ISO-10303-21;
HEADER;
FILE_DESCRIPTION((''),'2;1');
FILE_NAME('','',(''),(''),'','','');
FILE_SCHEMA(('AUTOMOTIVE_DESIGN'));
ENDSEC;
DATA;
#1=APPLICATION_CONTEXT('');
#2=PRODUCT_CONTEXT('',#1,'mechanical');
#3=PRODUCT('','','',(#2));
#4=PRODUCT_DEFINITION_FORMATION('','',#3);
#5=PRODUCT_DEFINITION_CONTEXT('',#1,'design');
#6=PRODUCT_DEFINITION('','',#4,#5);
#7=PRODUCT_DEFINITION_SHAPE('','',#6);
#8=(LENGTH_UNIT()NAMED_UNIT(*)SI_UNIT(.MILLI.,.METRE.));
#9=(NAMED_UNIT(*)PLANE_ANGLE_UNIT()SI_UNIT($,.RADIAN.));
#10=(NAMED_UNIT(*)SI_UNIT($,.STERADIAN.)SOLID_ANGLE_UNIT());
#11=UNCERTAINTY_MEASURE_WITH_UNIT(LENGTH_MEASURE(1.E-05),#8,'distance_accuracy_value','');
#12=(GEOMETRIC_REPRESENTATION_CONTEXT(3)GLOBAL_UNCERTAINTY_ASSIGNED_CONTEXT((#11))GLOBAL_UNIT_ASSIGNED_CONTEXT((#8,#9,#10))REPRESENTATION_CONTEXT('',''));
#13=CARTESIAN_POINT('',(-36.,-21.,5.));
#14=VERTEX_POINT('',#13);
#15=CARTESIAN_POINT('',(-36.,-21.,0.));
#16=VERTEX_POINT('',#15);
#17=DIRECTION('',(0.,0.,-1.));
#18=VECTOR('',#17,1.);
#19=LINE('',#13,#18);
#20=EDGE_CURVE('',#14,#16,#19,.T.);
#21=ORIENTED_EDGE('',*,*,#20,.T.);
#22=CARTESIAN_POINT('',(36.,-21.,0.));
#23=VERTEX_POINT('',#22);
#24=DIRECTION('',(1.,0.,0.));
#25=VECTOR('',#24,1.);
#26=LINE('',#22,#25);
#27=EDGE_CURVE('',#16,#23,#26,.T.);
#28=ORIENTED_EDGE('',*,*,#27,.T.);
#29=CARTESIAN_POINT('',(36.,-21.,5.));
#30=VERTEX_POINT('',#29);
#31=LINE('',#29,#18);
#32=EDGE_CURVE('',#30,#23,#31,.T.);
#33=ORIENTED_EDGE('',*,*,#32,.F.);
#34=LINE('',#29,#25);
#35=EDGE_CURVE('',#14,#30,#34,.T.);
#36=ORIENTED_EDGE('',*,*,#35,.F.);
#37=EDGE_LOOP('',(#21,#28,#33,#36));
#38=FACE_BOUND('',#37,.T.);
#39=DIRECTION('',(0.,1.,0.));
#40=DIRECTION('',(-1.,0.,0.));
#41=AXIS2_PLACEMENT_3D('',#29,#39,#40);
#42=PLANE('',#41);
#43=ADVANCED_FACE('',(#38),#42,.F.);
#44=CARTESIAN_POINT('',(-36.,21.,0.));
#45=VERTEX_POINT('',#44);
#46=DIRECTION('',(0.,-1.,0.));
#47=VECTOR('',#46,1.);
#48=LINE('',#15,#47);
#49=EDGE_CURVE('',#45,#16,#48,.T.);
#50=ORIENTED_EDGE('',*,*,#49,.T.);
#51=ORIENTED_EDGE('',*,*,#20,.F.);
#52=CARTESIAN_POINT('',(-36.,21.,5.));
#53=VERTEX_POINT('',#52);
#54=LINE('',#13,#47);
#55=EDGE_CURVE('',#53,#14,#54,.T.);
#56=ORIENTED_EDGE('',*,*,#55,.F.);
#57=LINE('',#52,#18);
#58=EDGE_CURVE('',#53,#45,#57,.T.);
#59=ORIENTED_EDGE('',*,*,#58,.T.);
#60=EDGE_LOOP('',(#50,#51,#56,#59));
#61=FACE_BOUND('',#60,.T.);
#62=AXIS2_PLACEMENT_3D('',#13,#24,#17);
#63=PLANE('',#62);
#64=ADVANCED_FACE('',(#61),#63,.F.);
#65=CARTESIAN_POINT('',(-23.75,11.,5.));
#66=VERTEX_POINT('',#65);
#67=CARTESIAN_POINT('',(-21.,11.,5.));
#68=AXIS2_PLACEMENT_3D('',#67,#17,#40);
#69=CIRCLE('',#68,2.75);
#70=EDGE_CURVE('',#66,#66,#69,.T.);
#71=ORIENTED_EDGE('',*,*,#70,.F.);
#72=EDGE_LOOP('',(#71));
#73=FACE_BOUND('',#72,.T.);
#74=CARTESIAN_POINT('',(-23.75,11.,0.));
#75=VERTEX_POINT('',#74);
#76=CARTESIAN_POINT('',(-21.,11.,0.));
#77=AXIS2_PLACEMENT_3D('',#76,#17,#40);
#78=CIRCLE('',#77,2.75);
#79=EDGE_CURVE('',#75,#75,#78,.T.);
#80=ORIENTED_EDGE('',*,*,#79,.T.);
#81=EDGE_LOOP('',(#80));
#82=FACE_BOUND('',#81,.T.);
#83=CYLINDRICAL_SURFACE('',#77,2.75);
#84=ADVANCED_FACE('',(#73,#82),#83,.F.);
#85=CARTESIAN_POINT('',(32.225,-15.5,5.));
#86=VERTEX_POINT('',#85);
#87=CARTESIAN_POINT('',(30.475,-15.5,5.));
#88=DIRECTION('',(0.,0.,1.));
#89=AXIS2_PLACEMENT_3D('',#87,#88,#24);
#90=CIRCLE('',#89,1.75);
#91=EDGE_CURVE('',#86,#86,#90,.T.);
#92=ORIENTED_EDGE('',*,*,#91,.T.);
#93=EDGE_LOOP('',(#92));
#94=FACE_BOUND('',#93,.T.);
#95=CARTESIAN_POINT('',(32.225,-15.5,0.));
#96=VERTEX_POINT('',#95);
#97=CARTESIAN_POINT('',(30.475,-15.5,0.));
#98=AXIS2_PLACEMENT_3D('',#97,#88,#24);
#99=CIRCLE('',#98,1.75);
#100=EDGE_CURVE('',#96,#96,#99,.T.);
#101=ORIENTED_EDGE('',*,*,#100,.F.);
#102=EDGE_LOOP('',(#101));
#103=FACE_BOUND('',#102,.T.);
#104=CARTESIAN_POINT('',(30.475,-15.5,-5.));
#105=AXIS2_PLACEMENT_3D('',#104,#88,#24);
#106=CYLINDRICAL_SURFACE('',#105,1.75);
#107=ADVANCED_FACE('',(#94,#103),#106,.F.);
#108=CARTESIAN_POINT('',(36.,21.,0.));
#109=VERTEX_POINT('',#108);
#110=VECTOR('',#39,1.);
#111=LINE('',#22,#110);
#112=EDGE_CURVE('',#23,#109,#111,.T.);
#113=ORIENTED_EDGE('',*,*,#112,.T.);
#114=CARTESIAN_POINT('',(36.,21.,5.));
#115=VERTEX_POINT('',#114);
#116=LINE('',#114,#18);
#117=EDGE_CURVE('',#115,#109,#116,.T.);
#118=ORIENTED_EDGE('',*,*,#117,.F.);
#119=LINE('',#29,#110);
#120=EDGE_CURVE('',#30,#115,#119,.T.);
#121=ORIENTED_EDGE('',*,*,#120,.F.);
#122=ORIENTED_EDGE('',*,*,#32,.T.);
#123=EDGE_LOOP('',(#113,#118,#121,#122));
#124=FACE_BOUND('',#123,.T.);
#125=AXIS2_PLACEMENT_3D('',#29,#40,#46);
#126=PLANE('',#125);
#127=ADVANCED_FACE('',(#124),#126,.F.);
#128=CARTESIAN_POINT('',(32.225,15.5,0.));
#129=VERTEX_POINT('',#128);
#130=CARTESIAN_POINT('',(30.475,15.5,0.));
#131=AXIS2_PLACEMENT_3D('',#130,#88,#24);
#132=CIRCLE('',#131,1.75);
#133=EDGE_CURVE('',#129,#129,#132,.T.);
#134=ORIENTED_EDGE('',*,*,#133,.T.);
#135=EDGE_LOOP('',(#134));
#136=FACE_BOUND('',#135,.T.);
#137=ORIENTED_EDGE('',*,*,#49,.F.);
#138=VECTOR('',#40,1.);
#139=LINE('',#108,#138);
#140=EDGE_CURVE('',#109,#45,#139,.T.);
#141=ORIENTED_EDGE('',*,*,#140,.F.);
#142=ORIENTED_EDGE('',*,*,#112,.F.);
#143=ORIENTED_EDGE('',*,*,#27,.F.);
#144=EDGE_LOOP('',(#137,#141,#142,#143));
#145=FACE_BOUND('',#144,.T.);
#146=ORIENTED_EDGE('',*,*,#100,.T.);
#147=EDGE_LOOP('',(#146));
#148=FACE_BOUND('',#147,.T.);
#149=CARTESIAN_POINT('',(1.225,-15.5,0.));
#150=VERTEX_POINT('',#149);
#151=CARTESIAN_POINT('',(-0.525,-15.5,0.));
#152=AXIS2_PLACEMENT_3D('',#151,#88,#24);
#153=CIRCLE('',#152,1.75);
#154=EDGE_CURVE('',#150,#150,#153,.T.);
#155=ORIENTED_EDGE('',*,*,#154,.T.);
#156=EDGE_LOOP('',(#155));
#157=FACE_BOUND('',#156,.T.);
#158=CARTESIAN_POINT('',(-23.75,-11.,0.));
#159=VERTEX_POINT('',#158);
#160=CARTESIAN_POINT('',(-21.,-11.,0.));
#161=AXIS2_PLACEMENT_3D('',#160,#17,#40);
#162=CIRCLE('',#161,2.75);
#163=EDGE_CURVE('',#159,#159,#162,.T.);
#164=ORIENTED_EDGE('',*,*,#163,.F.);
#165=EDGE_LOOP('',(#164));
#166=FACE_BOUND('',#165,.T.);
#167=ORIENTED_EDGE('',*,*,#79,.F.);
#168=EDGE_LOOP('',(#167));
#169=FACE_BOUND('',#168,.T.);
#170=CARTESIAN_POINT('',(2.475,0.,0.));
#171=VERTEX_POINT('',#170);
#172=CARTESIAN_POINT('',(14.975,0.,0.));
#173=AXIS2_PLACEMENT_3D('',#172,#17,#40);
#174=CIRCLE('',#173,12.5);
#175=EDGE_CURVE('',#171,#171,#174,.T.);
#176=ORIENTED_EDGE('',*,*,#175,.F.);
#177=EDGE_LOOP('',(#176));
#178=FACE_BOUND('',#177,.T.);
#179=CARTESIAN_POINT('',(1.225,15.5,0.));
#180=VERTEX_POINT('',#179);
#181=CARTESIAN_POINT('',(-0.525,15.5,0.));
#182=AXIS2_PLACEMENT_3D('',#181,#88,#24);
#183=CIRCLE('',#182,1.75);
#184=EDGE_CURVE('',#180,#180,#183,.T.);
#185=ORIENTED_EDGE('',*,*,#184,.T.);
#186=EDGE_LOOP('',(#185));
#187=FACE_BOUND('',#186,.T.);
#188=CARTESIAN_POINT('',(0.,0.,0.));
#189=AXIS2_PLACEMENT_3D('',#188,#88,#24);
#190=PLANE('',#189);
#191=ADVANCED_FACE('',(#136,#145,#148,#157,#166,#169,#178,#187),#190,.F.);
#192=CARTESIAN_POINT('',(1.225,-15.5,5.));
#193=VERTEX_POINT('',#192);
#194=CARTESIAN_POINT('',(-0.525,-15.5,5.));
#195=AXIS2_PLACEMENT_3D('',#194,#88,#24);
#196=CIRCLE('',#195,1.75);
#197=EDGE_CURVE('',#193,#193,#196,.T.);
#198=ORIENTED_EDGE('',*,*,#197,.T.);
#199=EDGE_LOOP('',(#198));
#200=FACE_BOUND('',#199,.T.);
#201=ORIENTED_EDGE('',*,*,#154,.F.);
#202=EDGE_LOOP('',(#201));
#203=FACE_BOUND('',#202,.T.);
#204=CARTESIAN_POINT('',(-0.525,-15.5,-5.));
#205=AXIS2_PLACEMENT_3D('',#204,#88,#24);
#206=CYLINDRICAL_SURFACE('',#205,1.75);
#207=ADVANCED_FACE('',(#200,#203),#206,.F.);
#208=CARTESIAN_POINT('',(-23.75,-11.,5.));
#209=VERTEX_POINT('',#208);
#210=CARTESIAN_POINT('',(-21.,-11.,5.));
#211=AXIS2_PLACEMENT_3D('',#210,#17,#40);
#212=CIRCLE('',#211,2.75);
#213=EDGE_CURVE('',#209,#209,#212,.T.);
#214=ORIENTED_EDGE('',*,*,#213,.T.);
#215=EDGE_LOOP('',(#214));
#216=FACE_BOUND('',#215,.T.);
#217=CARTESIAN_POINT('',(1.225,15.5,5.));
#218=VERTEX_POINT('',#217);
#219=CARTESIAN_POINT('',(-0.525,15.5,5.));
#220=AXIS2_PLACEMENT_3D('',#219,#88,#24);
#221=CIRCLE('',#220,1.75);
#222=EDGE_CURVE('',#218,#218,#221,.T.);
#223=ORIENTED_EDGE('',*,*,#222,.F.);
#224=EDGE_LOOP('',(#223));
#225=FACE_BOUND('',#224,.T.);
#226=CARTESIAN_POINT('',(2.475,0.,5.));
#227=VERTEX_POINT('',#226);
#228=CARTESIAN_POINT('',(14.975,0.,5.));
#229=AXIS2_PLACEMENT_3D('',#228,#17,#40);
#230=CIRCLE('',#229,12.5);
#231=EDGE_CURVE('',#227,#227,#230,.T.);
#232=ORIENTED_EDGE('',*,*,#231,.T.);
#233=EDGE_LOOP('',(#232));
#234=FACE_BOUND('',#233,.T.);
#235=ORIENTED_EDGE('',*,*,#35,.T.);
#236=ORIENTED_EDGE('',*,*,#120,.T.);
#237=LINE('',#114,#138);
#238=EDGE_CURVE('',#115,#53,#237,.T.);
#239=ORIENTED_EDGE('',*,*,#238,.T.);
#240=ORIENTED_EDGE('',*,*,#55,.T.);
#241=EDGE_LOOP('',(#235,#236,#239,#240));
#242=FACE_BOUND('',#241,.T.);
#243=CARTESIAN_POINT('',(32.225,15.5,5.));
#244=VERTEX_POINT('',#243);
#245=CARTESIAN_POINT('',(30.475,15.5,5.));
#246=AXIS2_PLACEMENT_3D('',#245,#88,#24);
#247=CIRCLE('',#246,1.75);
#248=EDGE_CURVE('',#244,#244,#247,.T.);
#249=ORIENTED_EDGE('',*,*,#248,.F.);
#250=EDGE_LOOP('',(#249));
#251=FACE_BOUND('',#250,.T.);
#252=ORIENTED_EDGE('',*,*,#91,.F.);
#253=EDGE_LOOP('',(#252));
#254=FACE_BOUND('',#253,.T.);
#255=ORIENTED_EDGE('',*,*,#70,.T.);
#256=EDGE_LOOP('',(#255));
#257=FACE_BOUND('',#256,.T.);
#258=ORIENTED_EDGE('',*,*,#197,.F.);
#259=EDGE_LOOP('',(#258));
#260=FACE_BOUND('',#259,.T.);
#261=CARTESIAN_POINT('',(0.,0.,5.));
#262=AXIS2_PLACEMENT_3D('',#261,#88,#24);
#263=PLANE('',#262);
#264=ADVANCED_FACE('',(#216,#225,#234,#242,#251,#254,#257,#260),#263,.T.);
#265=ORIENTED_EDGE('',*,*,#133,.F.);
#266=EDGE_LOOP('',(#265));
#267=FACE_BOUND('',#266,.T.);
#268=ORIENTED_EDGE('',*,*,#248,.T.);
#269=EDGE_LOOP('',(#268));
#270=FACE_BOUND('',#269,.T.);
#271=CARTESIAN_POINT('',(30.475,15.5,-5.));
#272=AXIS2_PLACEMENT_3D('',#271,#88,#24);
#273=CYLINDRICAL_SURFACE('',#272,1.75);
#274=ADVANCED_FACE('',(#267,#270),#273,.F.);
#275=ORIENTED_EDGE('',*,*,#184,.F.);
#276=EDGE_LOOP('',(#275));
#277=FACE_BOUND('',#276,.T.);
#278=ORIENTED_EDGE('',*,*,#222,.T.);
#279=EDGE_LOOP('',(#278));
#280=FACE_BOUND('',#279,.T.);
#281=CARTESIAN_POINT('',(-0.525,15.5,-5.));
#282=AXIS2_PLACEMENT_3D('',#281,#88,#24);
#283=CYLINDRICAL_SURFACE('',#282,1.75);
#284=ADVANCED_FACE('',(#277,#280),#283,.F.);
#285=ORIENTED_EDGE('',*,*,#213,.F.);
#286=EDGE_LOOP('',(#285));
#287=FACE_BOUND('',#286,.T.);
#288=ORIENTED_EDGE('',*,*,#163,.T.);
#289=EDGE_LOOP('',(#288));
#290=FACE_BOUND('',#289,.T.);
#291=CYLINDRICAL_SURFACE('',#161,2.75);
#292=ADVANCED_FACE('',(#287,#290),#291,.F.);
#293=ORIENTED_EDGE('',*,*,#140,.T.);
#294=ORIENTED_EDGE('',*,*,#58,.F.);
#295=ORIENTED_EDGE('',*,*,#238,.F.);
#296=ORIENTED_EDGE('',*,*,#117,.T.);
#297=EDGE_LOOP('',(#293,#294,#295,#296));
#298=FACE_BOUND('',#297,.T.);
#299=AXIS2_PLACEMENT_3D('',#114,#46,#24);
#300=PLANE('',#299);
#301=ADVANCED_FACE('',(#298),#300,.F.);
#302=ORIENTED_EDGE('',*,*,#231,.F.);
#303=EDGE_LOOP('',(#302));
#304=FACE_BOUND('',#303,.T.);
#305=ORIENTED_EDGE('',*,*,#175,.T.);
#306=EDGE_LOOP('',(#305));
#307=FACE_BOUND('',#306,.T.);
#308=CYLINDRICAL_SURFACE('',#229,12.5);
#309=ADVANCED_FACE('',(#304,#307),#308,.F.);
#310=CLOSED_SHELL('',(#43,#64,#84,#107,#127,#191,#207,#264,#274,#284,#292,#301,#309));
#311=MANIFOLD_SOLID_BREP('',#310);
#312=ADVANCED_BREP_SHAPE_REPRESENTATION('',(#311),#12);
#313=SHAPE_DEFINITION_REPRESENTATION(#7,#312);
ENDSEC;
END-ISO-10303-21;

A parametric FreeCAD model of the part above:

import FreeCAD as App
import Part
import Sketcher


def add_polygon(sketch, points):
    """Adds a closed chain of lines whose ends are joined by coincident constraints."""
    first, n = sketch.GeometryCount, len(points)
    for a, b in zip(points, points[1:] + points[:1]):
        sketch.addGeometry(Part.LineSegment(App.Vector(*a, 0), App.Vector(*b, 0)), False)
    for i in range(n):
        sketch.addConstraint(Sketcher.Constraint("Coincident", first + i, 2, first + (i + 1) % n, 1))

doc = App.newDocument("Part")
body = doc.addObject("PartDesign::Body", "Body")

sketch1 = body.newObject("Sketcher::SketchObject", "Sketch")
sketch1.AttachmentSupport = (doc.getObject("XY_Plane"), [""])
sketch1.MapMode = "FlatFace"
add_polygon(sketch1, [(-36, 21), (-36, -21), (36, -21), (36, 21)])
sketch1.addConstraint(Sketcher.Constraint("Vertical", 0))
sketch1.addConstraint(Sketcher.Constraint("Horizontal", 1))
sketch1.addConstraint(Sketcher.Constraint("Vertical", 2))
sketch1.addConstraint(Sketcher.Constraint("Horizontal", 3))
sketch1.addConstraint(Sketcher.Constraint("Symmetric", 0, 2, 2, 2, -1, 1))
sketch1.addConstraint(Sketcher.Constraint("DistanceX", 1, 1, 1, 2, 72.0))
sketch1.addConstraint(Sketcher.Constraint("DistanceY", 0, 2, 0, 1, 42.0))
pad1 = body.newObject("PartDesign::Pad", "Pad")
pad1.Profile = sketch1
pad1.Length = 5

sketch2 = body.newObject("Sketcher::SketchObject", "Sketch001")
sketch2.AttachmentSupport = (doc.getObject("XY_Plane"), [""])
sketch2.MapMode = "FlatFace"
sketch2.AttachmentOffset = App.Placement(App.Vector(0, 0, 5), App.Rotation())
sketch2.addGeometry(Part.Circle(App.Vector(30.5, 15.5, 0), App.Vector(0, 0, 1), 1.8), False)
sketch2.addGeometry(Part.Circle(App.Vector(30.5, -15.5, 0), App.Vector(0, 0, 1), 1.8), False)
sketch2.addGeometry(Part.Circle(App.Vector(-0.5, -15.5, 0), App.Vector(0, 0, 1), 1.8), False)
sketch2.addGeometry(Part.Circle(App.Vector(-0.5, 15.5, 0), App.Vector(0, 0, 1), 1.8), False)
sketch2.addConstraint(Sketcher.Constraint("Equal", 0, 1))
sketch2.addConstraint(Sketcher.Constraint("Equal", 1, 2))
sketch2.addConstraint(Sketcher.Constraint("Equal", 2, 3))
sketch2.addConstraint(Sketcher.Constraint("Symmetric", 0, 3, 1, 3, -1))
sketch2.addConstraint(Sketcher.Constraint("Symmetric", 2, 3, 3, 3, -1))
sketch2.addConstraint(Sketcher.Constraint("Horizontal", 1, 3, 2, 3))
sketch2.addConstraint(Sketcher.Constraint("Diameter", 0, 3.5))
sketch2.addConstraint(Sketcher.Constraint("DistanceY", 1, 3, 0, 3, 31.0))
sketch2.addConstraint(Sketcher.Constraint("DistanceX", 2, 3, 1, 3, 31.0))
sketch2.addConstraint(Sketcher.Constraint("DistanceX", -1, 1, 0, 3, 30.475))
pocket1 = body.newObject("PartDesign::Pocket", "Pocket")
pocket1.Profile = sketch2
pocket1.Length = 10

sketch3 = body.newObject("Sketcher::SketchObject", "Sketch002")
sketch3.AttachmentSupport = (doc.getObject("XY_Plane"), [""])
sketch3.MapMode = "FlatFace"
sketch3.addGeometry(Part.Circle(App.Vector(-21, 11, 0), App.Vector(0, 0, 1), 2.8), False)
sketch3.addGeometry(Part.Circle(App.Vector(-21, -11, 0), App.Vector(0, 0, 1), 2.8), False)
sketch3.addConstraint(Sketcher.Constraint("Equal", 0, 1))
sketch3.addConstraint(Sketcher.Constraint("Symmetric", 0, 3, 1, 3, -1))
sketch3.addConstraint(Sketcher.Constraint("Diameter", 0, 5.5))
sketch3.addConstraint(Sketcher.Constraint("DistanceX", 0, 3, -1, 1, 21.0))
sketch3.addConstraint(Sketcher.Constraint("DistanceY", -1, 1, 0, 3, 11.0))
doc.recompute()
hole = body.newObject("PartDesign::Hole", "Hole")
hole.Profile = sketch3
hole.ThreadType = "None"
hole.Diameter = 5.5
hole.DepthType = "ThroughAll"
hole.Reversed = True

sketch4 = body.newObject("Sketcher::SketchObject", "Sketch003")
sketch4.AttachmentSupport = (doc.getObject("XY_Plane"), [""])
sketch4.MapMode = "FlatFace"
sketch4.addGeometry(Part.Circle(App.Vector(15, 0, 0), App.Vector(0, 0, 1), 12), False)
sketch4.addConstraint(Sketcher.Constraint("PointOnObject", 0, 3, -1))
sketch4.addConstraint(Sketcher.Constraint("Diameter", 0, 25.0))
sketch4.addConstraint(Sketcher.Constraint("DistanceX", -1, 1, 0, 3, 14.975))
pocket2 = body.newObject("PartDesign::Pocket", "Pocket001")
pocket2.Profile = sketch4
pocket2.Type = "ThroughAll"
pocket2.Reversed = True

doc.recompute()
